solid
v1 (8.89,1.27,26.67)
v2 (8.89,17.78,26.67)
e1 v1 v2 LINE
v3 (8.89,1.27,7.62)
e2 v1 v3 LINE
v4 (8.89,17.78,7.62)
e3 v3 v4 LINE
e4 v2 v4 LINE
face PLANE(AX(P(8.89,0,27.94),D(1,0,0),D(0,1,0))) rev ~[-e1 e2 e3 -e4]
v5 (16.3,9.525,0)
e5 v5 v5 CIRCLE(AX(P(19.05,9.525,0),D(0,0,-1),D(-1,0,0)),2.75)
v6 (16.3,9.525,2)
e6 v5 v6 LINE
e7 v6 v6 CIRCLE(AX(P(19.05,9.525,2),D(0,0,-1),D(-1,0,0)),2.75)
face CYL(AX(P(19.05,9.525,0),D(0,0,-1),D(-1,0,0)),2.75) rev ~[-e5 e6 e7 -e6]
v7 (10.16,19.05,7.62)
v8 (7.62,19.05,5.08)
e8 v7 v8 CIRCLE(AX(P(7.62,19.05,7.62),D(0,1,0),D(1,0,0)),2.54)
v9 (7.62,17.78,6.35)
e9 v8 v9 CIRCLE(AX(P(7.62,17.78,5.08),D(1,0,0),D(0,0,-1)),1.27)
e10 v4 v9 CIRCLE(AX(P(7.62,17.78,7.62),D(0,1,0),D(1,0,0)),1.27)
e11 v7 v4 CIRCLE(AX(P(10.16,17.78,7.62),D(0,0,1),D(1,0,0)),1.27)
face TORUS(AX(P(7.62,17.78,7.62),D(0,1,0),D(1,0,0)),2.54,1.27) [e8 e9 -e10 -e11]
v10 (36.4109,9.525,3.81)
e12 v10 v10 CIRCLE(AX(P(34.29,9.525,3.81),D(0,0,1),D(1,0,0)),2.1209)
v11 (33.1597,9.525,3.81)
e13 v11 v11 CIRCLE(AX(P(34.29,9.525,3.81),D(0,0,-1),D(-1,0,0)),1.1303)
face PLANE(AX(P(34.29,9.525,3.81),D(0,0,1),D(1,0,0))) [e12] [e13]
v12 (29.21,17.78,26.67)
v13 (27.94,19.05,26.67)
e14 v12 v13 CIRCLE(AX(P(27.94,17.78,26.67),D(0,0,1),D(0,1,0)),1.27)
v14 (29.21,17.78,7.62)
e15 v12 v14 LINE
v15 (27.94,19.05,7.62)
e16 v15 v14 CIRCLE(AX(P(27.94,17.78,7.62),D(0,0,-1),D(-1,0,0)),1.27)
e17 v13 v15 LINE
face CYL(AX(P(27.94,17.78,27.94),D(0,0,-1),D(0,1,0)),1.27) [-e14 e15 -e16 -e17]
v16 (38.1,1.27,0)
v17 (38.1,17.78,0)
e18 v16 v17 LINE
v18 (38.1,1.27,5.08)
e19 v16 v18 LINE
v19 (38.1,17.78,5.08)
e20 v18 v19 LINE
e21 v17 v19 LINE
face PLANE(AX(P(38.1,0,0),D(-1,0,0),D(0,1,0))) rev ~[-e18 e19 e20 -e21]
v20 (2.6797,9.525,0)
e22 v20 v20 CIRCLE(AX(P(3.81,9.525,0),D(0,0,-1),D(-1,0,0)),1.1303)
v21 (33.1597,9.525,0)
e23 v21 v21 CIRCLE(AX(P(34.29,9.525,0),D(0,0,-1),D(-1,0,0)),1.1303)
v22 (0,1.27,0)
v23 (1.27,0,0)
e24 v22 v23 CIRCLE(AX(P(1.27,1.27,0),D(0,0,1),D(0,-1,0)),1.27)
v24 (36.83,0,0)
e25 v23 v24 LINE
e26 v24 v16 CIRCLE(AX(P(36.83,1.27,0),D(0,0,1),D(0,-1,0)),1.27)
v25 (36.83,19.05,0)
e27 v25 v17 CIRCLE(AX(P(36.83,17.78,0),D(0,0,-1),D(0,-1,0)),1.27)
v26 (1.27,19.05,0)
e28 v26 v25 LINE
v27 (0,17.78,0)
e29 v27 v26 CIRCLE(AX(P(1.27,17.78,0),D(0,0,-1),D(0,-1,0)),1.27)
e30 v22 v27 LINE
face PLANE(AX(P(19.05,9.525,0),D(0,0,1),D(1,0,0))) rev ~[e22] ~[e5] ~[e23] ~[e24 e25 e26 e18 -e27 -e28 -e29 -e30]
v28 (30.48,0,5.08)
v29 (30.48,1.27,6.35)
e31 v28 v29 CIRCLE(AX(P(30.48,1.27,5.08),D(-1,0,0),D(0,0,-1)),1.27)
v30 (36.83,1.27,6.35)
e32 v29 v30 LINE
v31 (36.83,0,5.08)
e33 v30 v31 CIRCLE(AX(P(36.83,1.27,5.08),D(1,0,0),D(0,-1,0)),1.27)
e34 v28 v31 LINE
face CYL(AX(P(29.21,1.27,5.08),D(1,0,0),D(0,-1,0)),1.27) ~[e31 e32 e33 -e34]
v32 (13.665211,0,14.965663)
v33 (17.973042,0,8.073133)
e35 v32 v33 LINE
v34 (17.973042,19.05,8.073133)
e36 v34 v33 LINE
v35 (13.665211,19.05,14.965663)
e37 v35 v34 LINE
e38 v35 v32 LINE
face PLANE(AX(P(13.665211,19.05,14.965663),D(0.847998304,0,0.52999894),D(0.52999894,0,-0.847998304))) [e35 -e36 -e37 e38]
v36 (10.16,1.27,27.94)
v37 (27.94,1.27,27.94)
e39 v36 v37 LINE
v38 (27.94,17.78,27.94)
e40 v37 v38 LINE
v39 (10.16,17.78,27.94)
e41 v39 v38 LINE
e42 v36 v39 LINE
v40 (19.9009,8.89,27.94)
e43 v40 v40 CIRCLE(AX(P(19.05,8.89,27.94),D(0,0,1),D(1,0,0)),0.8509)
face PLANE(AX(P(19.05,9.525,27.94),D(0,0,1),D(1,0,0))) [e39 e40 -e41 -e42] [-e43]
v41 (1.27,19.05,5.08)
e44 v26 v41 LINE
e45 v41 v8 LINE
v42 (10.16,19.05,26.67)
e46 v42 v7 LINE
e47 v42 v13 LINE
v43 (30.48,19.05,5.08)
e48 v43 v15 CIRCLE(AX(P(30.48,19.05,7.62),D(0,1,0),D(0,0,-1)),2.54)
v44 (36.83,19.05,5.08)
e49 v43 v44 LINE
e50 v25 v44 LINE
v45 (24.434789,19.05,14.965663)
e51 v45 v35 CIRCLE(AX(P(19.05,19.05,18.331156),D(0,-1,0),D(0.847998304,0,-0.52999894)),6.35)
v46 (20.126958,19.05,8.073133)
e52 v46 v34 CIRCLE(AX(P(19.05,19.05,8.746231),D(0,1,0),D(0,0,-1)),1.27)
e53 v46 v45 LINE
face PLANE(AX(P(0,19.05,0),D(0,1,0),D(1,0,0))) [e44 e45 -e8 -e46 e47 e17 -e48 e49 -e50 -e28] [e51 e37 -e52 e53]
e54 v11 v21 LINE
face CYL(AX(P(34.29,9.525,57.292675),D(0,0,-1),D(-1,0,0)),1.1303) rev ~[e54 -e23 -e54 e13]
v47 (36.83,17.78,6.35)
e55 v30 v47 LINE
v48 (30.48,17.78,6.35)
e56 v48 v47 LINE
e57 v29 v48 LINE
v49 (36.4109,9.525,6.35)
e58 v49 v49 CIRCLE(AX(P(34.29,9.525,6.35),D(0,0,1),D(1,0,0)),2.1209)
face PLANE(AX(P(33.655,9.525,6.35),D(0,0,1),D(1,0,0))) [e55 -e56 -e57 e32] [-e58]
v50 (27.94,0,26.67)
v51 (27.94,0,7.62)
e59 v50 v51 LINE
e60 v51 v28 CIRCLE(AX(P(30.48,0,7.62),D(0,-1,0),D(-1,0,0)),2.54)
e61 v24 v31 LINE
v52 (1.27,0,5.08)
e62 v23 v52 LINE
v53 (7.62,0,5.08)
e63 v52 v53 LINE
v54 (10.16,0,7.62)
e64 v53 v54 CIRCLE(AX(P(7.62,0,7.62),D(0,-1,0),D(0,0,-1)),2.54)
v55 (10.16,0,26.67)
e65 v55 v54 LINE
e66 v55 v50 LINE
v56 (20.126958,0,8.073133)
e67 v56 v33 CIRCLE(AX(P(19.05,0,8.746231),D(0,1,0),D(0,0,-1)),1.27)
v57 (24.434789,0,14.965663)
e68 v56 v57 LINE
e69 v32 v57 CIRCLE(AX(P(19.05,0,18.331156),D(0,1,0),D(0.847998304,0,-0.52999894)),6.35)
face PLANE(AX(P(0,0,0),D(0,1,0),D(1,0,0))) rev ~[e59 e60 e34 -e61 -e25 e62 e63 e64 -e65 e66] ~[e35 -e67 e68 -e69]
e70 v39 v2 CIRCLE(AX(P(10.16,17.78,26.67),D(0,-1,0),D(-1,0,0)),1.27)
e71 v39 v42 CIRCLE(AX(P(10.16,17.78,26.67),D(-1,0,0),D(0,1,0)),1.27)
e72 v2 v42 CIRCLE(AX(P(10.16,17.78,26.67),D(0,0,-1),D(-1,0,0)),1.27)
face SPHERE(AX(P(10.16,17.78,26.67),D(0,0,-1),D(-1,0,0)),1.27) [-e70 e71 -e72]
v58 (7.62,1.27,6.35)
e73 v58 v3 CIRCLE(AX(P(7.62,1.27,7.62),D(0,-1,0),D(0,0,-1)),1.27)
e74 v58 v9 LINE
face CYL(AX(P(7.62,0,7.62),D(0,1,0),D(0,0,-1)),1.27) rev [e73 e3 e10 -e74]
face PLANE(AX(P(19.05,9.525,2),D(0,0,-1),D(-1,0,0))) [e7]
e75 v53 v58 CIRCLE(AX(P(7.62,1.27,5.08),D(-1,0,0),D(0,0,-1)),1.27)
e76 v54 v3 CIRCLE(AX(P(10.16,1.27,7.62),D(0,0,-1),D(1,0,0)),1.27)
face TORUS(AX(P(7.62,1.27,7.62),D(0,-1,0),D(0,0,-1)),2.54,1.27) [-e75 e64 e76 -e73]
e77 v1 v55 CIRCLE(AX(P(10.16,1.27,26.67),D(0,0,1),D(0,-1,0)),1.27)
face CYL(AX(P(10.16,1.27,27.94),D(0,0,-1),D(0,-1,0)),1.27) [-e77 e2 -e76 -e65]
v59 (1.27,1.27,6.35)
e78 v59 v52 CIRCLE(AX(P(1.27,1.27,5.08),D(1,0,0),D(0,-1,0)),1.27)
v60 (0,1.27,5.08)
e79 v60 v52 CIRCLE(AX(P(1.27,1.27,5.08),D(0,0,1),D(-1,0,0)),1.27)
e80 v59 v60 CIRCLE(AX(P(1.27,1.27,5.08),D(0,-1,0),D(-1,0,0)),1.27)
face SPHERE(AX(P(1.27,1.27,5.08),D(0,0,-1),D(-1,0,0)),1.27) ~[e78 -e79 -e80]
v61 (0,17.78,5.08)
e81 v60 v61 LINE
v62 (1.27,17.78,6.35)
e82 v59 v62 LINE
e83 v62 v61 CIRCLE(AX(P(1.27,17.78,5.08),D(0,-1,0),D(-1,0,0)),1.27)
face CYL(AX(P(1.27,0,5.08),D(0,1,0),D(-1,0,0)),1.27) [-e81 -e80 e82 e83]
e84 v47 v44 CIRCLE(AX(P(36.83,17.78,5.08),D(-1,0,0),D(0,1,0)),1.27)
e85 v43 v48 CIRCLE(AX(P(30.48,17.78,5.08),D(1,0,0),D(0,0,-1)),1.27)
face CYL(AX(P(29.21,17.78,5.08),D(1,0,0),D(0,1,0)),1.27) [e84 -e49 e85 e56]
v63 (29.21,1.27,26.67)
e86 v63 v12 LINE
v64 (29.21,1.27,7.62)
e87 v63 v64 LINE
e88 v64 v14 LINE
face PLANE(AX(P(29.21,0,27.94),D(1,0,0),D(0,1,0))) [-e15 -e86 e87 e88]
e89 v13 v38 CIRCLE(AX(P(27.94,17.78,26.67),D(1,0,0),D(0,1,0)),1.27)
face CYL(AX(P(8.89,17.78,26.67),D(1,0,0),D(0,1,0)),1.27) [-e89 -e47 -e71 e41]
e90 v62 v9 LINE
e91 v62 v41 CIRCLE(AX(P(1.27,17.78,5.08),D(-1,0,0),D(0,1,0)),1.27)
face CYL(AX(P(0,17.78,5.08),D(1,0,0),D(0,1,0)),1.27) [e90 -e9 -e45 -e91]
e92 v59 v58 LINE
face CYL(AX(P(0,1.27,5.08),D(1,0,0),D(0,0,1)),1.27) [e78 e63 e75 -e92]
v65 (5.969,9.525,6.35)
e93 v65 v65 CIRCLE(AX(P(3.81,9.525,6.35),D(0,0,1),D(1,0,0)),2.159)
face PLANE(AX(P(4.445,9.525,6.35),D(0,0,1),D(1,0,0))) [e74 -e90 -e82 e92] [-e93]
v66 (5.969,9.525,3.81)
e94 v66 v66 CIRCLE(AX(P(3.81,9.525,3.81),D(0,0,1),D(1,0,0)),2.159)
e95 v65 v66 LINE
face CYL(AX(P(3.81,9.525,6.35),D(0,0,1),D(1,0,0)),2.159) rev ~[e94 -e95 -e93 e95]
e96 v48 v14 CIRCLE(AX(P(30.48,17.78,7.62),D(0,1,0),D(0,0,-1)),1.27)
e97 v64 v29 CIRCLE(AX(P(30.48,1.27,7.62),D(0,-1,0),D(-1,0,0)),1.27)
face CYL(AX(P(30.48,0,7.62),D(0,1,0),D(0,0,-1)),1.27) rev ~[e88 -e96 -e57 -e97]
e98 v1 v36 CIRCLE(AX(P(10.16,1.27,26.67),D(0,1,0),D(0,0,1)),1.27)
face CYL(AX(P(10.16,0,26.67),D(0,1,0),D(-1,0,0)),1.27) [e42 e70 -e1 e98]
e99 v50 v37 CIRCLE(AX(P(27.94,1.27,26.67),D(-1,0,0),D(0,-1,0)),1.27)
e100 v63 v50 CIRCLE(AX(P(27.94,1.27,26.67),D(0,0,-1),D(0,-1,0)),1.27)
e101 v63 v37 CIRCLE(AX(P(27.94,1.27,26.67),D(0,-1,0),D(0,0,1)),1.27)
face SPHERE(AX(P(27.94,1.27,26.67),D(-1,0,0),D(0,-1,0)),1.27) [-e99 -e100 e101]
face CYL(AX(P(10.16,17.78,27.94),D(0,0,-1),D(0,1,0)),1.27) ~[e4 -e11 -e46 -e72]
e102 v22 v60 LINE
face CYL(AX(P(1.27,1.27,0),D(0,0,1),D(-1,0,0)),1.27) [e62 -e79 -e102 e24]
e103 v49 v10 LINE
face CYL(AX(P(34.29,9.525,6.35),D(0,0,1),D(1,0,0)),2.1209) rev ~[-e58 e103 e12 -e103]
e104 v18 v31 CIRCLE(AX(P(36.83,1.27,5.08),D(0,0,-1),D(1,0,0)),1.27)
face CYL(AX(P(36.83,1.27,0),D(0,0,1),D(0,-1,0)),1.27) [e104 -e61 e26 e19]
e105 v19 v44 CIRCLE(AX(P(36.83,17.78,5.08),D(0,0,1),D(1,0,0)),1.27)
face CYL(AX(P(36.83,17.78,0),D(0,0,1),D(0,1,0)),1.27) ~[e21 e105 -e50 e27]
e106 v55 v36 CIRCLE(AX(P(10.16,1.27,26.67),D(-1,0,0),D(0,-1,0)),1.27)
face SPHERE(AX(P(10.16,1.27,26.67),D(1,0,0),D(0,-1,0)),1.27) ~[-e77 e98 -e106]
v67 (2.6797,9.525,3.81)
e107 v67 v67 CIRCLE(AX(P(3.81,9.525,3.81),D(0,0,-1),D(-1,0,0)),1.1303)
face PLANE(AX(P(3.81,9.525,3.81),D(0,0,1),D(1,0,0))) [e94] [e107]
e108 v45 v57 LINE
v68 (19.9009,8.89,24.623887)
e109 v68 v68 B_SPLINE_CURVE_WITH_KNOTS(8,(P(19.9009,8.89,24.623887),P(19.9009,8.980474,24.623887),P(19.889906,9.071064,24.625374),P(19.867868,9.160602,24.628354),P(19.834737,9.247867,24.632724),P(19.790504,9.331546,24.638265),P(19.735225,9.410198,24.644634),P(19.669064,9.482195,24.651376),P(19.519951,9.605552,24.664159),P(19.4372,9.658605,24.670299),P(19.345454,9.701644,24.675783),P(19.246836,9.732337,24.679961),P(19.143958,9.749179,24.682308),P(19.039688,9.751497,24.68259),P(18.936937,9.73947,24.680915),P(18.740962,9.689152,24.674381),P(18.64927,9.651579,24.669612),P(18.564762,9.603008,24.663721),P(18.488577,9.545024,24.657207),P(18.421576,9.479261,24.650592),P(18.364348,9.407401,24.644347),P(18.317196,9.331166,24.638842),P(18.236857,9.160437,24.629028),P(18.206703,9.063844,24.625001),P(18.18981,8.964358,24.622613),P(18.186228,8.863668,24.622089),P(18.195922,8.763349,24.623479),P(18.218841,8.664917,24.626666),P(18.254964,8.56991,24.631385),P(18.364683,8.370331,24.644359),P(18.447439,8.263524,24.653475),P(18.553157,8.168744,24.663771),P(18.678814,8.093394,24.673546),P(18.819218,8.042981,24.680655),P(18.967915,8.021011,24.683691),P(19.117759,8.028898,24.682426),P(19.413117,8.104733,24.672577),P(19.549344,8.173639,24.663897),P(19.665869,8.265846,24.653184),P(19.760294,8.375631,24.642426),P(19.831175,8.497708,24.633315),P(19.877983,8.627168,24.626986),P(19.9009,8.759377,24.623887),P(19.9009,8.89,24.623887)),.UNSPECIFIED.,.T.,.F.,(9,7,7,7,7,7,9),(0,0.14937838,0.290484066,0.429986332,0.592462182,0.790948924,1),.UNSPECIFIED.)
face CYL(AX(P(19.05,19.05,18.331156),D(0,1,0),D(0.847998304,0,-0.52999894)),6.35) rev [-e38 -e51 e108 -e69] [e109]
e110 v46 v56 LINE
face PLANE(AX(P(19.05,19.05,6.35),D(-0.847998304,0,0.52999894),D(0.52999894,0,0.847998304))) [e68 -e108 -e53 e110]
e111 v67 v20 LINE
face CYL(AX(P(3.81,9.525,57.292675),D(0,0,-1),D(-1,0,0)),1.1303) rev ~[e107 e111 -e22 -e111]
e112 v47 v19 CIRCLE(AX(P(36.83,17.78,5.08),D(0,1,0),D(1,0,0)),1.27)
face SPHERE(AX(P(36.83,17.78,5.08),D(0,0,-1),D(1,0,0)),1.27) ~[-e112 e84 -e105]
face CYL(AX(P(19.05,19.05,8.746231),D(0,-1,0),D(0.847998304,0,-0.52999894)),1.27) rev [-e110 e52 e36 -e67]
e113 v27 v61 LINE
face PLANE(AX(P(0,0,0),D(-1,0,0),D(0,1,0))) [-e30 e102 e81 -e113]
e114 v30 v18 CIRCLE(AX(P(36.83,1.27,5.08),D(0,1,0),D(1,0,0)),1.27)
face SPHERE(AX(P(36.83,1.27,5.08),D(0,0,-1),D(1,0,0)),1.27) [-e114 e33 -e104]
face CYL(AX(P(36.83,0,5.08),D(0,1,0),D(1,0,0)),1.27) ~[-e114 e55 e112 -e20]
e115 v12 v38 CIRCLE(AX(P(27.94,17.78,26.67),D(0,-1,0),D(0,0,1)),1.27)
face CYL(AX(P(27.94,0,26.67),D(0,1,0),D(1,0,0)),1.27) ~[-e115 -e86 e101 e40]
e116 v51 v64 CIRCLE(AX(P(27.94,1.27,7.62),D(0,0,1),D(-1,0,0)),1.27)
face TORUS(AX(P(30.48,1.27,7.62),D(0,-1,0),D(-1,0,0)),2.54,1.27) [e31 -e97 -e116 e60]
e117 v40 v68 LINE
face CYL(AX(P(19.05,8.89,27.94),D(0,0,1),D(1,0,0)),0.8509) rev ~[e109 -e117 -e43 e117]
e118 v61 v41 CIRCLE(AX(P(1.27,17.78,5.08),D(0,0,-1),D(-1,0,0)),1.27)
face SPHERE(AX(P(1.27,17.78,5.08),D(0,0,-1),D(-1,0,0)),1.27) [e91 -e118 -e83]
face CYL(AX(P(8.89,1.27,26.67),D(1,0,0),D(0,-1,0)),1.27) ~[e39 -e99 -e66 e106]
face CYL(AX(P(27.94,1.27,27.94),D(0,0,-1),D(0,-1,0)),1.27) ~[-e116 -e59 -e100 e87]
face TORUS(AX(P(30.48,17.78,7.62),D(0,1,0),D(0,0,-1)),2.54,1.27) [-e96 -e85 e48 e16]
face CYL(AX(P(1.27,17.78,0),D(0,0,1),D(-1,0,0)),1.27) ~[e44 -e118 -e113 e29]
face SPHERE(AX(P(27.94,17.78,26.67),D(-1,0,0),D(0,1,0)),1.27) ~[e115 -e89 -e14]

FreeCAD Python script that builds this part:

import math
import FreeCAD as App
import Part
import Sketcher

V = App.Vector
Q = App.Units.Quantity


def edges_at(feature, points):
    """Names of the edges that pass closest to the given points."""
    edges = feature.Shape.Edges
    near = lambda p: min(range(len(edges)), key=lambda i: edges[i].distToShape(Part.Vertex(*p))[0])
    return sorted({f"Edge{near(p) + 1}" for p in points})


def add_polygon(sketch, points):
    """Adds a closed chain of lines whose ends are joined by coincident constraints."""
    first, n = sketch.GeometryCount, len(points)
    for a, b in zip(points, points[1:] + points[:1]):
        sketch.addGeometry(Part.LineSegment(App.Vector(*a, 0), App.Vector(*b, 0)), False)
    for i in range(n):
        sketch.addConstraint(Sketcher.Constraint("Coincident", first + i, 2, first + (i + 1) % n, 1))

doc = App.newDocument("Part")
params = doc.addObject("Spreadsheet::Sheet", "Params")
for row, (alias, value) in enumerate([
    ("sketch1_width", "1.5 in"),
    ("sketch1_height", "0.75 in"),
    ("pad1_length", "1.1 in"),
    ("sketch2_width", "0.35 in"),
    ("sketch2_height", "0.75 in"),
    ("pocket1_length", "0.85 in"),
    ("sketch3_radius", "0.25 in"),
    ("sketch3_length", "0.4 in"),
    ("pocket2_length", "1.25 in"),
    ("sketch4_diameter", "0.089 in"),
    ("hole_diameter", "0.089 in"),
    ("sketch5_diameter", "0.067 in"),
    ("fillet_radius", "0.05 in"),
    ("pocket4_length", "2 mm"),
    ("sketch7_diameter", "0.17 in"),
    ("sketch7_diameter2", "0.167 in"),
    ("pocket5_length", "0.1 in"),
], start=1):
    params.set(f"A{row}", alias)
    params.set(f"B{row}", "=" + value)
    params.setAlias(f"B{row}", alias)

body = doc.addObject("PartDesign::Body", "Body")

# Sketch on XY plane
sketch1 = body.newObject("Sketcher::SketchObject", "Sketch")
sketch1.AttachmentSupport = (doc.getObject("XY_Plane"), [""])
sketch1.MapMode = "FlatFace"
add_polygon(sketch1, [(0, 19), (0, 0), (38, 0), (38, 19)])  # lines 0-3
sketch1.addConstraint(Sketcher.Constraint("Vertical", 0))
sketch1.addConstraint(Sketcher.Constraint("Horizontal", 1))
sketch1.addConstraint(Sketcher.Constraint("Vertical", 2))
sketch1.addConstraint(Sketcher.Constraint("Horizontal", 3))
sketch1.addConstraint(Sketcher.Constraint("Coincident", 0, 2, -1, 1))
sketch1.addConstraint(Sketcher.Constraint("DistanceX", 1, 1, 1, 2, Q("1.5 in")))
sketch1.addConstraint(Sketcher.Constraint("DistanceY", 0, 2, 0, 1, Q("0.75 in")))
sketch1.setExpression("Constraints[9]", "Params.sketch1_width")
sketch1.setExpression("Constraints[10]", "Params.sketch1_height")
pad1 = body.newObject("PartDesign::Pad", "Pad")
pad1.Profile = sketch1
pad1.setExpression("Length", "Params.pad1_length")

# Sketch on XY plane
sketch2 = body.newObject("Sketcher::SketchObject", "Sketch001")
sketch2.AttachmentSupport = (doc.getObject("XY_Plane"), [""])
sketch2.MapMode = "FlatFace"
sketch2.AttachmentOffset = App.Placement(V(0, 0, 1.1 * 25.4), App.Rotation())
add_polygon(sketch2, [(0, 19), (0, 0), (9, 0), (9, 19)])  # lines 0-3
add_polygon(sketch2, [(29, 19), (29, 0), (38, 0), (38, 19)])  # lines 4-7
sketch2.addConstraint(Sketcher.Constraint("Vertical", 0))
sketch2.addConstraint(Sketcher.Constraint("Horizontal", 1))
sketch2.addConstraint(Sketcher.Constraint("Vertical", 2))
sketch2.addConstraint(Sketcher.Constraint("Horizontal", 3))
sketch2.addConstraint(Sketcher.Constraint("Vertical", 4))
sketch2.addConstraint(Sketcher.Constraint("Horizontal", 5))
sketch2.addConstraint(Sketcher.Constraint("Vertical", 6))
sketch2.addConstraint(Sketcher.Constraint("Horizontal", 7))
sketch2.addConstraint(Sketcher.Constraint("Coincident", 0, 2, -1, 1))
sketch2.addConstraint(Sketcher.Constraint("PointOnObject", 4, 2, -1))
sketch2.addConstraint(Sketcher.Constraint("Horizontal", 3, 2, 6, 2))
sketch2.addConstraint(Sketcher.Constraint("Equal", 3, 5))
sketch2.addConstraint(Sketcher.Constraint("DistanceX", 1, 1, 1, 2, Q("0.35 in")))
sketch2.addConstraint(Sketcher.Constraint("DistanceY", 0, 2, 0, 1, Q("0.75 in")))
sketch2.addConstraint(Sketcher.Constraint("DistanceX", -1, 1, 5, 2, Q("1.5 in")))
sketch2.setExpression("Constraints[20]", "Params.sketch2_width")
sketch2.setExpression("Constraints[21]", "Params.sketch2_height")
pocket1 = body.newObject("PartDesign::Pocket", "Pocket")
pocket1.Profile = sketch2
pocket1.setExpression("Length", "Params.pocket1_length")

# Sketch on XZ plane
sketch3 = body.newObject("Sketcher::SketchObject", "Sketch002")
sketch3.AttachmentSupport = (doc.getObject("XZ_Plane"), [""])
sketch3.MapMode = "FlatFace"
sketch3.AttachmentOffset = App.Placement(V(0, 0, -0.75 * 25.4), App.Rotation())
sketch3.addGeometry(Part.LineSegment(V(19, 6, 0), V(14, 15, 0)), False)
sketch3.addGeometry(Part.ArcOfCircle(Part.Circle(V(19, 18, 0), V(0, 0, 1), 6), math.radians(-32), math.radians(212)), False)
sketch3.addGeometry(Part.LineSegment(V(24, 15, 0), V(19, 6, 0)), False)
sketch3.addConstraint(Sketcher.Constraint("Tangent", 0, 2, 1, 2))
sketch3.addConstraint(Sketcher.Constraint("Tangent", 1, 1, 2, 1))
sketch3.addConstraint(Sketcher.Constraint("Coincident", 2, 2, 0, 1))
sketch3.addConstraint(Sketcher.Constraint("Horizontal", 0, 2, 1, 1))
sketch3.addConstraint(Sketcher.Constraint("Radius", 1, Q("0.25 in")))
sketch3.addConstraint(Sketcher.Constraint("Distance", 0, Q("0.4 in")))
sketch3.addConstraint(Sketcher.Constraint("DistanceX", -1, 1, 1, 3, Q("0.75 in")))
sketch3.addConstraint(Sketcher.Constraint("DistanceY", -1, 1, 2, 2, Q("0.25 in")))
sketch3.setExpression("Constraints[4]", "Params.sketch3_radius")
sketch3.setExpression("Constraints[5]", "Params.sketch3_length")
pocket2 = body.newObject("PartDesign::Pocket", "Pocket001")
pocket2.Profile = sketch3
pocket2.setExpression("Length", "Params.pocket2_length")
pocket2.Reversed = True

# Sketch on XY plane
sketch4 = body.newObject("Sketcher::SketchObject", "Sketch003")
sketch4.AttachmentSupport = (doc.getObject("XY_Plane"), [""])
sketch4.MapMode = "FlatFace"
sketch4.AttachmentOffset = App.Placement(V(0, 0, 0.25 * 25.4), App.Rotation())
sketch4.addGeometry(Part.Circle(V(3.8, 9.5, 0), V(0, 0, 1), 1.1), False)
sketch4.addGeometry(Part.Circle(V(34.3, 9.5, 0), V(0, 0, 1), 1.1), False)
sketch4.addConstraint(Sketcher.Constraint("Equal", 0, 1))
sketch4.addConstraint(Sketcher.Constraint("Horizontal", 0, 3, 1, 3))
sketch4.addConstraint(Sketcher.Constraint("Diameter", 0, Q("0.089 in")))
sketch4.addConstraint(Sketcher.Constraint("DistanceX", 0, 3, 1, 3, Q("1.2 in")))
sketch4.addConstraint(Sketcher.Constraint("DistanceX", -1, 1, 0, 3, Q("0.15 in")))
sketch4.addConstraint(Sketcher.Constraint("DistanceY", -1, 1, 0, 3, Q("0.375 in")))
sketch4.setExpression("Constraints[2]", "Params.sketch4_diameter")
doc.recompute()
hole = body.newObject("PartDesign::Hole", "Hole")
hole.Profile = sketch4
hole.ThreadType = "None"
hole.setExpression("Diameter", "Params.hole_diameter")
hole.DepthType = "ThroughAll"

# Sketch on XY plane
sketch5 = body.newObject("Sketcher::SketchObject", "Sketch004")
sketch5.AttachmentSupport = (doc.getObject("XY_Plane"), [""])
sketch5.MapMode = "FlatFace"
sketch5.AttachmentOffset = App.Placement(V(0, 0, 1.1 * 25.4), App.Rotation())
sketch5.addGeometry(Part.Circle(V(19.1, 8.9, 0), V(0, 0, 1), 0.9), False)
sketch5.addConstraint(Sketcher.Constraint("Diameter", 0, Q("0.067 in")))
sketch5.addConstraint(Sketcher.Constraint("DistanceX", -1, 1, 0, 3, Q("0.75 in")))
sketch5.addConstraint(Sketcher.Constraint("DistanceY", -1, 1, 0, 3, Q("0.35 in")))
sketch5.setExpression("Constraints[0]", "Params.sketch5_diameter")
pocket3 = body.newObject("PartDesign::Pocket", "Pocket002")
pocket3.Profile = sketch5
pocket3.Type = "UpToFirst"
doc.recompute()

fillet = body.newObject("PartDesign::Fillet", "Fillet")
fillet.Base = (pocket3, edges_at(pocket3, [
    (19.05, 0, 27.94),
    (0, 19.05, 3.175),
    (0, 0, 3.175),
    (0, 9.525, 6.35),
    (4.445, 19.05, 6.35),
    (8.89, 9.525, 6.35),
    (8.89, 19.05, 17.145),
    (4.445, 0, 6.35),
    (8.89, 0, 17.145),
    (8.89, 9.525, 27.94),
    (19.05, 19.05, 27.94),
    (38.1, 19.05, 3.175),
    (38.1, 0, 3.175),
    (38.1, 9.525, 6.35),
    (33.655, 0, 6.35),
    (29.21, 9.525, 6.35),
    (29.21, 0, 17.145),
    (33.655, 19.05, 6.35),
    (29.21, 19.05, 17.145),
    (29.21, 9.525, 27.94),
    (19.05, 9.525, 6.35),
]))
fillet.setExpression("Radius", "Params.fillet_radius")

# Sketch on XY plane
sketch6 = body.newObject("Sketcher::SketchObject", "Sketch005")
sketch6.AttachmentSupport = (doc.getObject("XY_Plane"), [""])
sketch6.MapMode = "FlatFace"
sketch6.addGeometry(Part.Circle(V(19.1, 9.5, 0), V(0, 0, 1), 2.8), False)
sketch6.addConstraint(Sketcher.Constraint("Diameter", 0, Q("5.5 mm")))
sketch6.addConstraint(Sketcher.Constraint("DistanceX", -1, 1, 0, 3, Q("0.75 in")))
sketch6.addConstraint(Sketcher.Constraint("DistanceY", -1, 1, 0, 3, Q("0.375 in")))
pocket4 = body.newObject("PartDesign::Pocket", "Pocket003")
pocket4.Profile = sketch6
pocket4.setExpression("Length", "Params.pocket4_length")
pocket4.Reversed = True

# Sketch on XY plane
sketch7 = body.newObject("Sketcher::SketchObject", "Sketch006")
sketch7.AttachmentSupport = (doc.getObject("XY_Plane"), [""])
sketch7.MapMode = "FlatFace"
sketch7.AttachmentOffset = App.Placement(V(0, 0, 0.25 * 25.4), App.Rotation())
sketch7.addGeometry(Part.Circle(V(3.8, 9.5, 0), V(0, 0, 1), 2.2), False)
sketch7.addGeometry(Part.Circle(V(34.3, 9.5, 0), V(0, 0, 1), 2.1), False)
sketch7.addConstraint(Sketcher.Constraint("Horizontal", 0, 3, 1, 3))
sketch7.addConstraint(Sketcher.Constraint("Diameter", 0, Q("0.17 in")))
sketch7.addConstraint(Sketcher.Constraint("Diameter", 1, Q("0.167 in")))
sketch7.addConstraint(Sketcher.Constraint("DistanceX", 0, 3, 1, 3, Q("1.2 in")))
sketch7.addConstraint(Sketcher.Constraint("DistanceX", -1, 1, 0, 3, Q("0.15 in")))
sketch7.addConstraint(Sketcher.Constraint("DistanceY", -1, 1, 0, 3, Q("0.375 in")))
sketch7.setExpression("Constraints[1]", "Params.sketch7_diameter")
sketch7.setExpression("Constraints[2]", "Params.sketch7_diameter2")
pocket5 = body.newObject("PartDesign::Pocket", "Pocket004")
pocket5.Profile = sketch7
pocket5.setExpression("Length", "Params.pocket5_length")

doc.recompute()
